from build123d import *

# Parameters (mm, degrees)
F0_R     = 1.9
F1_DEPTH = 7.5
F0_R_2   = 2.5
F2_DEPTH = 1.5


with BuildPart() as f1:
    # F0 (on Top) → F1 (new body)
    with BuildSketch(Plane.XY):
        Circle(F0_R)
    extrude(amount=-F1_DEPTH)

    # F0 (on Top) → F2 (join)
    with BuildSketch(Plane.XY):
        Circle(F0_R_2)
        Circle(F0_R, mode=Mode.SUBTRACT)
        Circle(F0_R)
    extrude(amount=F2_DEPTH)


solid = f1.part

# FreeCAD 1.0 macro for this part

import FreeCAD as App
import Part
import Sketcher
from FreeCAD import Vector
Q = App.Units.Quantity

doc = App.newDocument("Part")
body = doc.addObject("PartDesign::Body", "Body")

# Sketch on XY plane
sketch1 = doc.addObject("Sketcher::SketchObject", "Sketch")
body.addObject(sketch1)
sketch1.AttachmentSupport = (doc.XY_Plane, [""])
sketch1.MapMode = "FlatFace"
sketch1.addGeometry(Part.Circle(Vector(0, 0, 0), Vector(0, 0, 1), 1.9), False)
sketch1.addConstraint([
    Sketcher.Constraint("Coincident", 0, 3, -1, 1),
    Sketcher.Constraint("Diameter", 0, Q("3.8 mm")),
])
pad1 = doc.addObject("PartDesign::Pad", "Pad")
body.addObject(pad1)
pad1.Profile = sketch1
pad1.Length = 7.5
pad1.Reversed = True

# Sketch on XY plane
sketch2 = doc.addObject("Sketcher::SketchObject", "Sketch001")
body.addObject(sketch2)
sketch2.AttachmentSupport = (doc.XY_Plane, [""])
sketch2.MapMode = "FlatFace"
sketch2.addGeometry(Part.Circle(Vector(0, 0, 0), Vector(0, 0, 1), 2.5), False)
sketch2.addConstraint([
    Sketcher.Constraint("Coincident", 0, 3, -1, 1),
    Sketcher.Constraint("Diameter", 0, Q("5 mm")),
])
pad2 = doc.addObject("PartDesign::Pad", "Pad001")
body.addObject(pad2)
pad2.Profile = sketch2
pad2.Length = 1.5

doc.recompute()
